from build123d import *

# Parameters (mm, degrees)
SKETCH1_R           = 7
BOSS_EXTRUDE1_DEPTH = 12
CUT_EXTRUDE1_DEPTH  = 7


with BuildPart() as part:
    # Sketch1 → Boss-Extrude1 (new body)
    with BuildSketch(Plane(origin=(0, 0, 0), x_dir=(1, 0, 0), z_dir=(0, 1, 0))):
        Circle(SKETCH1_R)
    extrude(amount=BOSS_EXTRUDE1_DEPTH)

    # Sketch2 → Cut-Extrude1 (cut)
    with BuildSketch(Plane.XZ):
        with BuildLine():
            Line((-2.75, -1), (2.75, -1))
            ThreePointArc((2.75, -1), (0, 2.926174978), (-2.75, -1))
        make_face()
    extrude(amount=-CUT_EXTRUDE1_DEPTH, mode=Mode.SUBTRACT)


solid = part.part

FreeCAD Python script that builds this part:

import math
import FreeCAD as App
import Part
import Sketcher
from FreeCAD import Vector
Q = App.Units.Quantity

doc = App.newDocument("Part")
body = doc.addObject("PartDesign::Body", "Body")

# Sketch on XZ plane
sketch1 = body.newObject("Sketcher::SketchObject", "Sketch")
sketch1.AttachmentSupport = (doc.getObject("XZ_Plane"), [""])
sketch1.MapMode = "FlatFace"
sketch1.addGeometry(Part.Circle(Vector(0, 0, 0), Vector(0, 0, 1), 7), False)
sketch1.addConstraint([
    Sketcher.Constraint("Coincident", 0, 3, -1, 1),
    Sketcher.Constraint("Diameter", 0, Q("14 mm")),
])
pad1 = body.newObject("PartDesign::Pad", "Pad")
pad1.Profile = sketch1
pad1.Length = 12
pad1.Reversed = True

# Sketch on XZ plane
sketch2 = body.newObject("Sketcher::SketchObject", "Sketch001")
sketch2.AttachmentSupport = (doc.getObject("XZ_Plane"), [""])
sketch2.MapMode = "FlatFace"
sketch2.addGeometry([
    Part.LineSegment(Vector(-2.8, -1, 0), Vector(2.8, -1, 0)),
    Part.ArcOfCircle(Part.Circle(Vector(0, 0, 0), Vector(0, 0, 1), 2.9), math.radians(-20), math.radians(200)),
], False)
sketch2.addConstraint([
    Sketcher.Constraint("Coincident", 0, 1, 1, 2),
    Sketcher.Constraint("Coincident", 1, 1, 0, 2),
    Sketcher.Constraint("Horizontal", 0),
    Sketcher.Constraint("Coincident", 1, 3, -1, 1),
    Sketcher.Constraint("DistanceX", 0, 1, 0, 2, Q("5.5 mm")),
    Sketcher.Constraint("DistanceY", 0, 1, -1, 1, Q("1 mm")),
])
pocket1 = body.newObject("PartDesign::Pocket", "Pocket")
pocket1.Profile = sketch2
pocket1.Length = 7

doc.recompute()
